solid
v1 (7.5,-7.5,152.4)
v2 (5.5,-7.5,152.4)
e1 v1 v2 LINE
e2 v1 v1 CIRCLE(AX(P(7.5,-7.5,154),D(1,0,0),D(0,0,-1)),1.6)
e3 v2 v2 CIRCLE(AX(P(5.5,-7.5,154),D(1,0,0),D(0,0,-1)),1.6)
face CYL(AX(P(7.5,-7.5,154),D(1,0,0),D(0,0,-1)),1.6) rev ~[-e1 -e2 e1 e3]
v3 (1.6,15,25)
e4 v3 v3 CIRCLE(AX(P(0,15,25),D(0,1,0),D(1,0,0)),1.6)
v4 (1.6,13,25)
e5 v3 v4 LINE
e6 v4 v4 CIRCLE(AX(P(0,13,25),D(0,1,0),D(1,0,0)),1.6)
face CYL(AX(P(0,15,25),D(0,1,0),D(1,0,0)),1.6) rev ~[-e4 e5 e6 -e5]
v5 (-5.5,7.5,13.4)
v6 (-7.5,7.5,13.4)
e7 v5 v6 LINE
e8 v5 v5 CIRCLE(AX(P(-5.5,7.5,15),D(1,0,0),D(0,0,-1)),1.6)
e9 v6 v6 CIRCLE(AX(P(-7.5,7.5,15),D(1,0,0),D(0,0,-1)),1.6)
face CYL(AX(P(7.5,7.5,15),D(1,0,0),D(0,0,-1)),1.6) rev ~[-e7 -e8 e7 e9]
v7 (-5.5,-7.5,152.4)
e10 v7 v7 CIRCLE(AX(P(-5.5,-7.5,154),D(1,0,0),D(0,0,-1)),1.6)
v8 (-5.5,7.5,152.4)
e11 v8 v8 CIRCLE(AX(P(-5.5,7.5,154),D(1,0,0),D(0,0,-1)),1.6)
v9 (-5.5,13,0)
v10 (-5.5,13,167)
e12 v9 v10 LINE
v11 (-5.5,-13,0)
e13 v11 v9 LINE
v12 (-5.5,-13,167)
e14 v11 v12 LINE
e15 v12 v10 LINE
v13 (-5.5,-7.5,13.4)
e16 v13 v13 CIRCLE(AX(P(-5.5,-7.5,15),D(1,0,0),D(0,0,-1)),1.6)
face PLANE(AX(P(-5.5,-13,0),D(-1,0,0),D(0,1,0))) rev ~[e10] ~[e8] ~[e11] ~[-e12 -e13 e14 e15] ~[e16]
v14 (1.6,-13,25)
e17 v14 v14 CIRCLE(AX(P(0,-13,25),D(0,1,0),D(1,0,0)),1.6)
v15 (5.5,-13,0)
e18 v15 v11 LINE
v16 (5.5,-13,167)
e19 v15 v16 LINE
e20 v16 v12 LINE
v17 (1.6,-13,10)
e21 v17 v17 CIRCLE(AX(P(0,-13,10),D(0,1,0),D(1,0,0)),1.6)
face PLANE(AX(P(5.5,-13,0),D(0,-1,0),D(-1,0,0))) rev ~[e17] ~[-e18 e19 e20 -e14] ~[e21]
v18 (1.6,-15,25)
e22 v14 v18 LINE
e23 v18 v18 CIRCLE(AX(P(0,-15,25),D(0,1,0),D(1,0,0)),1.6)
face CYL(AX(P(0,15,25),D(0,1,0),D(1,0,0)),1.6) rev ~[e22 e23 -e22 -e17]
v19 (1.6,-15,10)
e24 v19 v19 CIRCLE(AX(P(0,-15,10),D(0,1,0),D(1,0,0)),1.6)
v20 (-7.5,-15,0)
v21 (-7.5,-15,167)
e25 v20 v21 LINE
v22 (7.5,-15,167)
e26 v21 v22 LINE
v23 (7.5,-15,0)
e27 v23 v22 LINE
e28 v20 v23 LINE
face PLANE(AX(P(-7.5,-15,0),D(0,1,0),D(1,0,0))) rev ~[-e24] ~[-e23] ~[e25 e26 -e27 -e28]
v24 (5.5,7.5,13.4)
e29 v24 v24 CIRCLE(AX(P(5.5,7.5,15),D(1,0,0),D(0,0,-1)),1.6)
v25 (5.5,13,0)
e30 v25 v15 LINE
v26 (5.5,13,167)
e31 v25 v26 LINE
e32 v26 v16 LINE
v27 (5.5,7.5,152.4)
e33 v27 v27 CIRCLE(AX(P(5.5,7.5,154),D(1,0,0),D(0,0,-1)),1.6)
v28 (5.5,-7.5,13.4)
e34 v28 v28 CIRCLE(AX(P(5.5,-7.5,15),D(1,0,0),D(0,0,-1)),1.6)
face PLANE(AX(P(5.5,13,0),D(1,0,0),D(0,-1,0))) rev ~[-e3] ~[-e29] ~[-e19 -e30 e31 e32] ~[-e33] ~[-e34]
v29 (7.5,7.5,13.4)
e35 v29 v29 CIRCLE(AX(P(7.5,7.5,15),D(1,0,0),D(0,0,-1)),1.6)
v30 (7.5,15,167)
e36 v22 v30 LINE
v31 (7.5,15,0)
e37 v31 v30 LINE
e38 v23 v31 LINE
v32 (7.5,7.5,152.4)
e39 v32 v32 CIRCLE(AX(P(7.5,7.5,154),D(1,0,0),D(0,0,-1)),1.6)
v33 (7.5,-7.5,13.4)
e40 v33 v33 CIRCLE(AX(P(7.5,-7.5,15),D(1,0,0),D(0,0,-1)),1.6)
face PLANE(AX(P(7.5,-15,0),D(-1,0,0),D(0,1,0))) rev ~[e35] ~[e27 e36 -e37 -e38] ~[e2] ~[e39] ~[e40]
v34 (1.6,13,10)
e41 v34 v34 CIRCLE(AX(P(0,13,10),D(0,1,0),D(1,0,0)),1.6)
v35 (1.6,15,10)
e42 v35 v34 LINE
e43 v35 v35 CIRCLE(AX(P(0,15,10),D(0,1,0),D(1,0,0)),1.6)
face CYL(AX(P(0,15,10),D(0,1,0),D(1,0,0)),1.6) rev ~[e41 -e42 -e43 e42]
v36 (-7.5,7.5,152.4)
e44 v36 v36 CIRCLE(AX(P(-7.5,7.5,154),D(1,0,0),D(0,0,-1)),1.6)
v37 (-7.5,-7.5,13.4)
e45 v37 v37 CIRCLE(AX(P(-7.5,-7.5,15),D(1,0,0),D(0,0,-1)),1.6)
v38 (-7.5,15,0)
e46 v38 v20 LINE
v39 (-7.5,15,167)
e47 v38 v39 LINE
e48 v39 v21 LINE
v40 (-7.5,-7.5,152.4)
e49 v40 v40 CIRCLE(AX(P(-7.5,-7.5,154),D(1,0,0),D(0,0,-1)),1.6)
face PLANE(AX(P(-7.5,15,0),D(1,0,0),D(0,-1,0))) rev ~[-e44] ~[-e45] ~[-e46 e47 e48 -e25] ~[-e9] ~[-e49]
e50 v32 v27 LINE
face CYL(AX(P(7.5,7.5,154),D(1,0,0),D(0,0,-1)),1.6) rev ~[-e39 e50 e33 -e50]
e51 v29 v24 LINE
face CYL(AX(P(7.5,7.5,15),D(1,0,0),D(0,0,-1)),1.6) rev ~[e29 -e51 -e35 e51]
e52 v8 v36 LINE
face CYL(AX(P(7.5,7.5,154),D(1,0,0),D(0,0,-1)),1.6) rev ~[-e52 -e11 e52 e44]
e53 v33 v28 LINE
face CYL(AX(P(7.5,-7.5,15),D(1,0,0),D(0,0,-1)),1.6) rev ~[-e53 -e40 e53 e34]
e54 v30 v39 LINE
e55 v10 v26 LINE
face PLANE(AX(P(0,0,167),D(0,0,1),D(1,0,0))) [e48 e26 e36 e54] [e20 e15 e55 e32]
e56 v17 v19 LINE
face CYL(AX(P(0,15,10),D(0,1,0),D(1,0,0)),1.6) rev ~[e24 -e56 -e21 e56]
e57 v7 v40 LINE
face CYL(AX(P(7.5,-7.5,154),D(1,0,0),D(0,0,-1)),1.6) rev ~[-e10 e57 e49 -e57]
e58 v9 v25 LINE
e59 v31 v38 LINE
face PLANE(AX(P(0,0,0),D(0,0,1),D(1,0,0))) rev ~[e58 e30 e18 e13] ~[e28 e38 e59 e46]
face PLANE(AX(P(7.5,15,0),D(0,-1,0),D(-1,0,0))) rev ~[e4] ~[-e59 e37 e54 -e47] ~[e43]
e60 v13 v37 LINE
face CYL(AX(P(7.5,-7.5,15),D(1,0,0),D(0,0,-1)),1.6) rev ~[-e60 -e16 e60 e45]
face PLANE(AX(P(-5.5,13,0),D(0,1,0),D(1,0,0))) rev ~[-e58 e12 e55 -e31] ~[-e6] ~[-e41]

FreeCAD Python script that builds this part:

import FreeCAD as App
import Part
import Sketcher
from FreeCAD import Vector


def add_polygon(sketch, points):
    """Adds a closed chain of lines whose ends are joined by coincident constraints."""
    first, n = sketch.GeometryCount, len(points)
    for a, b in zip(points, points[1:] + points[:1]):
        sketch.addGeometry(Part.LineSegment(App.Vector(*a, 0), App.Vector(*b, 0)), False)
    for i in range(n):
        sketch.addConstraint(Sketcher.Constraint("Coincident", first + i, 2, first + (i + 1) % n, 1))

doc = App.newDocument("Part")
params = doc.addObject("Spreadsheet::Sheet", "Params")
for row, (alias, value) in enumerate([
    ("sketch1_width", "15 mm"),
    ("sketch1_height", "30 mm"),
    ("pad1_length", "167 mm"),
    ("sketch2_diameter", "3.2 mm"),
    ("sketch3_diameter", "3.2 mm"),
], start=1):
    params.set(f"A{row}", alias)
    params.set(f"B{row}", "=" + value)
    params.setAlias(f"B{row}", alias)

body = doc.addObject("PartDesign::Body", "Body")

# Sketch on XY plane
sketch1 = body.newObject("Sketcher::SketchObject", "Sketch")
sketch1.AttachmentSupport = (doc.getObject("XY_Plane"), [""])
sketch1.MapMode = "FlatFace"
add_polygon(sketch1, [(8, -15), (8, 15), (-8, 15), (-8, -15)])  # lines 0-3
add_polygon(sketch1, [(-6, -13), (-6, 13), (6, 13), (6, -13)])  # lines 4-7
sketch1.addConstraint(Sketcher.Constraint("Vertical", 0))
sketch1.addConstraint(Sketcher.Constraint("Horizontal", 1))
sketch1.addConstraint(Sketcher.Constraint("Vertical", 2))
sketch1.addConstraint(Sketcher.Constraint("Horizontal", 3))
sketch1.addConstraint(Sketcher.Constraint("Vertical", 4))
sketch1.addConstraint(Sketcher.Constraint("Horizontal", 5))
sketch1.addConstraint(Sketcher.Constraint("Vertical", 6))
sketch1.addConstraint(Sketcher.Constraint("Horizontal", 7))
sketch1.addConstraint(Sketcher.Constraint("Symmetric", 0, 2, 2, 2, -1, 1))
sketch1.addConstraint(Sketcher.Constraint("Symmetric", 4, 2, 6, 2, -1, 1))
sketch1.addConstraint(Sketcher.Constraint("DistanceX", 1, 2, 1, 1, 15.0))
sketch1.addConstraint(Sketcher.Constraint("DistanceY", 0, 1, 0, 2, 30.0))
sketch1.addConstraint(Sketcher.Constraint("DistanceX", 1, 2, 4, 2, 2.0))
sketch1.addConstraint(Sketcher.Constraint("DistanceY", 4, 2, 1, 2, 2.0))
sketch1.setExpression("Constraints[18]", "Params.sketch1_width")
sketch1.setExpression("Constraints[19]", "Params.sketch1_height")
pad1 = body.newObject("PartDesign::Pad", "Pad")
pad1.Profile = sketch1
pad1.setExpression("Length", "Params.pad1_length")

# Sketch on YZ plane
sketch2 = body.newObject("Sketcher::SketchObject", "Sketch001")
sketch2.AttachmentSupport = (doc.getObject("YZ_Plane"), [""])
sketch2.MapMode = "FlatFace"
sketch2.AttachmentOffset = App.Placement(Vector(0, 0, 7.5), App.Rotation())
sketch2.addGeometry(Part.Circle(Vector(7.5, 15, 0), Vector(0, 0, 1), 1.6), False)
sketch2.addGeometry(Part.Circle(Vector(-7.5, 15, 0), Vector(0, 0, 1), 1.6), False)
sketch2.addGeometry(Part.Circle(Vector(7.5, 154, 0), Vector(0, 0, 1), 1.6), False)
sketch2.addGeometry(Part.Circle(Vector(-7.5, 154, 0), Vector(0, 0, 1), 1.6), False)
sketch2.addConstraint(Sketcher.Constraint("Equal", 0, 1))
sketch2.addConstraint(Sketcher.Constraint("Equal", 1, 2))
sketch2.addConstraint(Sketcher.Constraint("Equal", 2, 3))
sketch2.addConstraint(Sketcher.Constraint("Symmetric", 0, 3, 1, 3, -2))
sketch2.addConstraint(Sketcher.Constraint("Symmetric", 2, 3, 3, 3, -2))
sketch2.addConstraint(Sketcher.Constraint("Vertical", 0, 3, 2, 3))
sketch2.addConstraint(Sketcher.Constraint("Diameter", 0, 3.2))
sketch2.addConstraint(Sketcher.Constraint("DistanceY", -1, 1, 0, 3, 15.0))
sketch2.addConstraint(Sketcher.Constraint("DistanceX", 1, 3, 0, 3, 15.0))
sketch2.addConstraint(Sketcher.Constraint("DistanceY", 0, 3, 2, 3, 139.0))
sketch2.setExpression("Constraints[6]", "Params.sketch2_diameter")
pocket1 = body.newObject("PartDesign::Pocket", "Pocket")
pocket1.Profile = sketch2
pocket1.Type = "ThroughAll"

# Sketch on XZ plane
sketch3 = body.newObject("Sketcher::SketchObject", "Sketch002")
sketch3.AttachmentSupport = (doc.getObject("XZ_Plane"), [""])
sketch3.MapMode = "FlatFace"
sketch3.AttachmentOffset = App.Placement(Vector(0, 0, -15), App.Rotation())
sketch3.addGeometry(Part.Circle(Vector(0, 10, 0), Vector(0, 0, 1), 1.6), False)
sketch3.addGeometry(Part.Circle(Vector(0, 25, 0), Vector(0, 0, 1), 1.6), False)
sketch3.addConstraint(Sketcher.Constraint("Equal", 0, 1))
sketch3.addConstraint(Sketcher.Constraint("PointOnObject", 0, 3, -2))
sketch3.addConstraint(Sketcher.Constraint("PointOnObject", 1, 3, -2))
sketch3.addConstraint(Sketcher.Constraint("Diameter", 0, 3.2))
sketch3.addConstraint(Sketcher.Constraint("DistanceY", -1, 1, 0, 3, 10.0))
sketch3.addConstraint(Sketcher.Constraint("DistanceY", 0, 3, 1, 3, 15.0))
sketch3.setExpression("Constraints[3]", "Params.sketch3_diameter")
pocket2 = body.newObject("PartDesign::Pocket", "Pocket001")
pocket2.Profile = sketch3
pocket2.Type = "ThroughAll"
pocket2.Reversed = True

doc.recompute()
